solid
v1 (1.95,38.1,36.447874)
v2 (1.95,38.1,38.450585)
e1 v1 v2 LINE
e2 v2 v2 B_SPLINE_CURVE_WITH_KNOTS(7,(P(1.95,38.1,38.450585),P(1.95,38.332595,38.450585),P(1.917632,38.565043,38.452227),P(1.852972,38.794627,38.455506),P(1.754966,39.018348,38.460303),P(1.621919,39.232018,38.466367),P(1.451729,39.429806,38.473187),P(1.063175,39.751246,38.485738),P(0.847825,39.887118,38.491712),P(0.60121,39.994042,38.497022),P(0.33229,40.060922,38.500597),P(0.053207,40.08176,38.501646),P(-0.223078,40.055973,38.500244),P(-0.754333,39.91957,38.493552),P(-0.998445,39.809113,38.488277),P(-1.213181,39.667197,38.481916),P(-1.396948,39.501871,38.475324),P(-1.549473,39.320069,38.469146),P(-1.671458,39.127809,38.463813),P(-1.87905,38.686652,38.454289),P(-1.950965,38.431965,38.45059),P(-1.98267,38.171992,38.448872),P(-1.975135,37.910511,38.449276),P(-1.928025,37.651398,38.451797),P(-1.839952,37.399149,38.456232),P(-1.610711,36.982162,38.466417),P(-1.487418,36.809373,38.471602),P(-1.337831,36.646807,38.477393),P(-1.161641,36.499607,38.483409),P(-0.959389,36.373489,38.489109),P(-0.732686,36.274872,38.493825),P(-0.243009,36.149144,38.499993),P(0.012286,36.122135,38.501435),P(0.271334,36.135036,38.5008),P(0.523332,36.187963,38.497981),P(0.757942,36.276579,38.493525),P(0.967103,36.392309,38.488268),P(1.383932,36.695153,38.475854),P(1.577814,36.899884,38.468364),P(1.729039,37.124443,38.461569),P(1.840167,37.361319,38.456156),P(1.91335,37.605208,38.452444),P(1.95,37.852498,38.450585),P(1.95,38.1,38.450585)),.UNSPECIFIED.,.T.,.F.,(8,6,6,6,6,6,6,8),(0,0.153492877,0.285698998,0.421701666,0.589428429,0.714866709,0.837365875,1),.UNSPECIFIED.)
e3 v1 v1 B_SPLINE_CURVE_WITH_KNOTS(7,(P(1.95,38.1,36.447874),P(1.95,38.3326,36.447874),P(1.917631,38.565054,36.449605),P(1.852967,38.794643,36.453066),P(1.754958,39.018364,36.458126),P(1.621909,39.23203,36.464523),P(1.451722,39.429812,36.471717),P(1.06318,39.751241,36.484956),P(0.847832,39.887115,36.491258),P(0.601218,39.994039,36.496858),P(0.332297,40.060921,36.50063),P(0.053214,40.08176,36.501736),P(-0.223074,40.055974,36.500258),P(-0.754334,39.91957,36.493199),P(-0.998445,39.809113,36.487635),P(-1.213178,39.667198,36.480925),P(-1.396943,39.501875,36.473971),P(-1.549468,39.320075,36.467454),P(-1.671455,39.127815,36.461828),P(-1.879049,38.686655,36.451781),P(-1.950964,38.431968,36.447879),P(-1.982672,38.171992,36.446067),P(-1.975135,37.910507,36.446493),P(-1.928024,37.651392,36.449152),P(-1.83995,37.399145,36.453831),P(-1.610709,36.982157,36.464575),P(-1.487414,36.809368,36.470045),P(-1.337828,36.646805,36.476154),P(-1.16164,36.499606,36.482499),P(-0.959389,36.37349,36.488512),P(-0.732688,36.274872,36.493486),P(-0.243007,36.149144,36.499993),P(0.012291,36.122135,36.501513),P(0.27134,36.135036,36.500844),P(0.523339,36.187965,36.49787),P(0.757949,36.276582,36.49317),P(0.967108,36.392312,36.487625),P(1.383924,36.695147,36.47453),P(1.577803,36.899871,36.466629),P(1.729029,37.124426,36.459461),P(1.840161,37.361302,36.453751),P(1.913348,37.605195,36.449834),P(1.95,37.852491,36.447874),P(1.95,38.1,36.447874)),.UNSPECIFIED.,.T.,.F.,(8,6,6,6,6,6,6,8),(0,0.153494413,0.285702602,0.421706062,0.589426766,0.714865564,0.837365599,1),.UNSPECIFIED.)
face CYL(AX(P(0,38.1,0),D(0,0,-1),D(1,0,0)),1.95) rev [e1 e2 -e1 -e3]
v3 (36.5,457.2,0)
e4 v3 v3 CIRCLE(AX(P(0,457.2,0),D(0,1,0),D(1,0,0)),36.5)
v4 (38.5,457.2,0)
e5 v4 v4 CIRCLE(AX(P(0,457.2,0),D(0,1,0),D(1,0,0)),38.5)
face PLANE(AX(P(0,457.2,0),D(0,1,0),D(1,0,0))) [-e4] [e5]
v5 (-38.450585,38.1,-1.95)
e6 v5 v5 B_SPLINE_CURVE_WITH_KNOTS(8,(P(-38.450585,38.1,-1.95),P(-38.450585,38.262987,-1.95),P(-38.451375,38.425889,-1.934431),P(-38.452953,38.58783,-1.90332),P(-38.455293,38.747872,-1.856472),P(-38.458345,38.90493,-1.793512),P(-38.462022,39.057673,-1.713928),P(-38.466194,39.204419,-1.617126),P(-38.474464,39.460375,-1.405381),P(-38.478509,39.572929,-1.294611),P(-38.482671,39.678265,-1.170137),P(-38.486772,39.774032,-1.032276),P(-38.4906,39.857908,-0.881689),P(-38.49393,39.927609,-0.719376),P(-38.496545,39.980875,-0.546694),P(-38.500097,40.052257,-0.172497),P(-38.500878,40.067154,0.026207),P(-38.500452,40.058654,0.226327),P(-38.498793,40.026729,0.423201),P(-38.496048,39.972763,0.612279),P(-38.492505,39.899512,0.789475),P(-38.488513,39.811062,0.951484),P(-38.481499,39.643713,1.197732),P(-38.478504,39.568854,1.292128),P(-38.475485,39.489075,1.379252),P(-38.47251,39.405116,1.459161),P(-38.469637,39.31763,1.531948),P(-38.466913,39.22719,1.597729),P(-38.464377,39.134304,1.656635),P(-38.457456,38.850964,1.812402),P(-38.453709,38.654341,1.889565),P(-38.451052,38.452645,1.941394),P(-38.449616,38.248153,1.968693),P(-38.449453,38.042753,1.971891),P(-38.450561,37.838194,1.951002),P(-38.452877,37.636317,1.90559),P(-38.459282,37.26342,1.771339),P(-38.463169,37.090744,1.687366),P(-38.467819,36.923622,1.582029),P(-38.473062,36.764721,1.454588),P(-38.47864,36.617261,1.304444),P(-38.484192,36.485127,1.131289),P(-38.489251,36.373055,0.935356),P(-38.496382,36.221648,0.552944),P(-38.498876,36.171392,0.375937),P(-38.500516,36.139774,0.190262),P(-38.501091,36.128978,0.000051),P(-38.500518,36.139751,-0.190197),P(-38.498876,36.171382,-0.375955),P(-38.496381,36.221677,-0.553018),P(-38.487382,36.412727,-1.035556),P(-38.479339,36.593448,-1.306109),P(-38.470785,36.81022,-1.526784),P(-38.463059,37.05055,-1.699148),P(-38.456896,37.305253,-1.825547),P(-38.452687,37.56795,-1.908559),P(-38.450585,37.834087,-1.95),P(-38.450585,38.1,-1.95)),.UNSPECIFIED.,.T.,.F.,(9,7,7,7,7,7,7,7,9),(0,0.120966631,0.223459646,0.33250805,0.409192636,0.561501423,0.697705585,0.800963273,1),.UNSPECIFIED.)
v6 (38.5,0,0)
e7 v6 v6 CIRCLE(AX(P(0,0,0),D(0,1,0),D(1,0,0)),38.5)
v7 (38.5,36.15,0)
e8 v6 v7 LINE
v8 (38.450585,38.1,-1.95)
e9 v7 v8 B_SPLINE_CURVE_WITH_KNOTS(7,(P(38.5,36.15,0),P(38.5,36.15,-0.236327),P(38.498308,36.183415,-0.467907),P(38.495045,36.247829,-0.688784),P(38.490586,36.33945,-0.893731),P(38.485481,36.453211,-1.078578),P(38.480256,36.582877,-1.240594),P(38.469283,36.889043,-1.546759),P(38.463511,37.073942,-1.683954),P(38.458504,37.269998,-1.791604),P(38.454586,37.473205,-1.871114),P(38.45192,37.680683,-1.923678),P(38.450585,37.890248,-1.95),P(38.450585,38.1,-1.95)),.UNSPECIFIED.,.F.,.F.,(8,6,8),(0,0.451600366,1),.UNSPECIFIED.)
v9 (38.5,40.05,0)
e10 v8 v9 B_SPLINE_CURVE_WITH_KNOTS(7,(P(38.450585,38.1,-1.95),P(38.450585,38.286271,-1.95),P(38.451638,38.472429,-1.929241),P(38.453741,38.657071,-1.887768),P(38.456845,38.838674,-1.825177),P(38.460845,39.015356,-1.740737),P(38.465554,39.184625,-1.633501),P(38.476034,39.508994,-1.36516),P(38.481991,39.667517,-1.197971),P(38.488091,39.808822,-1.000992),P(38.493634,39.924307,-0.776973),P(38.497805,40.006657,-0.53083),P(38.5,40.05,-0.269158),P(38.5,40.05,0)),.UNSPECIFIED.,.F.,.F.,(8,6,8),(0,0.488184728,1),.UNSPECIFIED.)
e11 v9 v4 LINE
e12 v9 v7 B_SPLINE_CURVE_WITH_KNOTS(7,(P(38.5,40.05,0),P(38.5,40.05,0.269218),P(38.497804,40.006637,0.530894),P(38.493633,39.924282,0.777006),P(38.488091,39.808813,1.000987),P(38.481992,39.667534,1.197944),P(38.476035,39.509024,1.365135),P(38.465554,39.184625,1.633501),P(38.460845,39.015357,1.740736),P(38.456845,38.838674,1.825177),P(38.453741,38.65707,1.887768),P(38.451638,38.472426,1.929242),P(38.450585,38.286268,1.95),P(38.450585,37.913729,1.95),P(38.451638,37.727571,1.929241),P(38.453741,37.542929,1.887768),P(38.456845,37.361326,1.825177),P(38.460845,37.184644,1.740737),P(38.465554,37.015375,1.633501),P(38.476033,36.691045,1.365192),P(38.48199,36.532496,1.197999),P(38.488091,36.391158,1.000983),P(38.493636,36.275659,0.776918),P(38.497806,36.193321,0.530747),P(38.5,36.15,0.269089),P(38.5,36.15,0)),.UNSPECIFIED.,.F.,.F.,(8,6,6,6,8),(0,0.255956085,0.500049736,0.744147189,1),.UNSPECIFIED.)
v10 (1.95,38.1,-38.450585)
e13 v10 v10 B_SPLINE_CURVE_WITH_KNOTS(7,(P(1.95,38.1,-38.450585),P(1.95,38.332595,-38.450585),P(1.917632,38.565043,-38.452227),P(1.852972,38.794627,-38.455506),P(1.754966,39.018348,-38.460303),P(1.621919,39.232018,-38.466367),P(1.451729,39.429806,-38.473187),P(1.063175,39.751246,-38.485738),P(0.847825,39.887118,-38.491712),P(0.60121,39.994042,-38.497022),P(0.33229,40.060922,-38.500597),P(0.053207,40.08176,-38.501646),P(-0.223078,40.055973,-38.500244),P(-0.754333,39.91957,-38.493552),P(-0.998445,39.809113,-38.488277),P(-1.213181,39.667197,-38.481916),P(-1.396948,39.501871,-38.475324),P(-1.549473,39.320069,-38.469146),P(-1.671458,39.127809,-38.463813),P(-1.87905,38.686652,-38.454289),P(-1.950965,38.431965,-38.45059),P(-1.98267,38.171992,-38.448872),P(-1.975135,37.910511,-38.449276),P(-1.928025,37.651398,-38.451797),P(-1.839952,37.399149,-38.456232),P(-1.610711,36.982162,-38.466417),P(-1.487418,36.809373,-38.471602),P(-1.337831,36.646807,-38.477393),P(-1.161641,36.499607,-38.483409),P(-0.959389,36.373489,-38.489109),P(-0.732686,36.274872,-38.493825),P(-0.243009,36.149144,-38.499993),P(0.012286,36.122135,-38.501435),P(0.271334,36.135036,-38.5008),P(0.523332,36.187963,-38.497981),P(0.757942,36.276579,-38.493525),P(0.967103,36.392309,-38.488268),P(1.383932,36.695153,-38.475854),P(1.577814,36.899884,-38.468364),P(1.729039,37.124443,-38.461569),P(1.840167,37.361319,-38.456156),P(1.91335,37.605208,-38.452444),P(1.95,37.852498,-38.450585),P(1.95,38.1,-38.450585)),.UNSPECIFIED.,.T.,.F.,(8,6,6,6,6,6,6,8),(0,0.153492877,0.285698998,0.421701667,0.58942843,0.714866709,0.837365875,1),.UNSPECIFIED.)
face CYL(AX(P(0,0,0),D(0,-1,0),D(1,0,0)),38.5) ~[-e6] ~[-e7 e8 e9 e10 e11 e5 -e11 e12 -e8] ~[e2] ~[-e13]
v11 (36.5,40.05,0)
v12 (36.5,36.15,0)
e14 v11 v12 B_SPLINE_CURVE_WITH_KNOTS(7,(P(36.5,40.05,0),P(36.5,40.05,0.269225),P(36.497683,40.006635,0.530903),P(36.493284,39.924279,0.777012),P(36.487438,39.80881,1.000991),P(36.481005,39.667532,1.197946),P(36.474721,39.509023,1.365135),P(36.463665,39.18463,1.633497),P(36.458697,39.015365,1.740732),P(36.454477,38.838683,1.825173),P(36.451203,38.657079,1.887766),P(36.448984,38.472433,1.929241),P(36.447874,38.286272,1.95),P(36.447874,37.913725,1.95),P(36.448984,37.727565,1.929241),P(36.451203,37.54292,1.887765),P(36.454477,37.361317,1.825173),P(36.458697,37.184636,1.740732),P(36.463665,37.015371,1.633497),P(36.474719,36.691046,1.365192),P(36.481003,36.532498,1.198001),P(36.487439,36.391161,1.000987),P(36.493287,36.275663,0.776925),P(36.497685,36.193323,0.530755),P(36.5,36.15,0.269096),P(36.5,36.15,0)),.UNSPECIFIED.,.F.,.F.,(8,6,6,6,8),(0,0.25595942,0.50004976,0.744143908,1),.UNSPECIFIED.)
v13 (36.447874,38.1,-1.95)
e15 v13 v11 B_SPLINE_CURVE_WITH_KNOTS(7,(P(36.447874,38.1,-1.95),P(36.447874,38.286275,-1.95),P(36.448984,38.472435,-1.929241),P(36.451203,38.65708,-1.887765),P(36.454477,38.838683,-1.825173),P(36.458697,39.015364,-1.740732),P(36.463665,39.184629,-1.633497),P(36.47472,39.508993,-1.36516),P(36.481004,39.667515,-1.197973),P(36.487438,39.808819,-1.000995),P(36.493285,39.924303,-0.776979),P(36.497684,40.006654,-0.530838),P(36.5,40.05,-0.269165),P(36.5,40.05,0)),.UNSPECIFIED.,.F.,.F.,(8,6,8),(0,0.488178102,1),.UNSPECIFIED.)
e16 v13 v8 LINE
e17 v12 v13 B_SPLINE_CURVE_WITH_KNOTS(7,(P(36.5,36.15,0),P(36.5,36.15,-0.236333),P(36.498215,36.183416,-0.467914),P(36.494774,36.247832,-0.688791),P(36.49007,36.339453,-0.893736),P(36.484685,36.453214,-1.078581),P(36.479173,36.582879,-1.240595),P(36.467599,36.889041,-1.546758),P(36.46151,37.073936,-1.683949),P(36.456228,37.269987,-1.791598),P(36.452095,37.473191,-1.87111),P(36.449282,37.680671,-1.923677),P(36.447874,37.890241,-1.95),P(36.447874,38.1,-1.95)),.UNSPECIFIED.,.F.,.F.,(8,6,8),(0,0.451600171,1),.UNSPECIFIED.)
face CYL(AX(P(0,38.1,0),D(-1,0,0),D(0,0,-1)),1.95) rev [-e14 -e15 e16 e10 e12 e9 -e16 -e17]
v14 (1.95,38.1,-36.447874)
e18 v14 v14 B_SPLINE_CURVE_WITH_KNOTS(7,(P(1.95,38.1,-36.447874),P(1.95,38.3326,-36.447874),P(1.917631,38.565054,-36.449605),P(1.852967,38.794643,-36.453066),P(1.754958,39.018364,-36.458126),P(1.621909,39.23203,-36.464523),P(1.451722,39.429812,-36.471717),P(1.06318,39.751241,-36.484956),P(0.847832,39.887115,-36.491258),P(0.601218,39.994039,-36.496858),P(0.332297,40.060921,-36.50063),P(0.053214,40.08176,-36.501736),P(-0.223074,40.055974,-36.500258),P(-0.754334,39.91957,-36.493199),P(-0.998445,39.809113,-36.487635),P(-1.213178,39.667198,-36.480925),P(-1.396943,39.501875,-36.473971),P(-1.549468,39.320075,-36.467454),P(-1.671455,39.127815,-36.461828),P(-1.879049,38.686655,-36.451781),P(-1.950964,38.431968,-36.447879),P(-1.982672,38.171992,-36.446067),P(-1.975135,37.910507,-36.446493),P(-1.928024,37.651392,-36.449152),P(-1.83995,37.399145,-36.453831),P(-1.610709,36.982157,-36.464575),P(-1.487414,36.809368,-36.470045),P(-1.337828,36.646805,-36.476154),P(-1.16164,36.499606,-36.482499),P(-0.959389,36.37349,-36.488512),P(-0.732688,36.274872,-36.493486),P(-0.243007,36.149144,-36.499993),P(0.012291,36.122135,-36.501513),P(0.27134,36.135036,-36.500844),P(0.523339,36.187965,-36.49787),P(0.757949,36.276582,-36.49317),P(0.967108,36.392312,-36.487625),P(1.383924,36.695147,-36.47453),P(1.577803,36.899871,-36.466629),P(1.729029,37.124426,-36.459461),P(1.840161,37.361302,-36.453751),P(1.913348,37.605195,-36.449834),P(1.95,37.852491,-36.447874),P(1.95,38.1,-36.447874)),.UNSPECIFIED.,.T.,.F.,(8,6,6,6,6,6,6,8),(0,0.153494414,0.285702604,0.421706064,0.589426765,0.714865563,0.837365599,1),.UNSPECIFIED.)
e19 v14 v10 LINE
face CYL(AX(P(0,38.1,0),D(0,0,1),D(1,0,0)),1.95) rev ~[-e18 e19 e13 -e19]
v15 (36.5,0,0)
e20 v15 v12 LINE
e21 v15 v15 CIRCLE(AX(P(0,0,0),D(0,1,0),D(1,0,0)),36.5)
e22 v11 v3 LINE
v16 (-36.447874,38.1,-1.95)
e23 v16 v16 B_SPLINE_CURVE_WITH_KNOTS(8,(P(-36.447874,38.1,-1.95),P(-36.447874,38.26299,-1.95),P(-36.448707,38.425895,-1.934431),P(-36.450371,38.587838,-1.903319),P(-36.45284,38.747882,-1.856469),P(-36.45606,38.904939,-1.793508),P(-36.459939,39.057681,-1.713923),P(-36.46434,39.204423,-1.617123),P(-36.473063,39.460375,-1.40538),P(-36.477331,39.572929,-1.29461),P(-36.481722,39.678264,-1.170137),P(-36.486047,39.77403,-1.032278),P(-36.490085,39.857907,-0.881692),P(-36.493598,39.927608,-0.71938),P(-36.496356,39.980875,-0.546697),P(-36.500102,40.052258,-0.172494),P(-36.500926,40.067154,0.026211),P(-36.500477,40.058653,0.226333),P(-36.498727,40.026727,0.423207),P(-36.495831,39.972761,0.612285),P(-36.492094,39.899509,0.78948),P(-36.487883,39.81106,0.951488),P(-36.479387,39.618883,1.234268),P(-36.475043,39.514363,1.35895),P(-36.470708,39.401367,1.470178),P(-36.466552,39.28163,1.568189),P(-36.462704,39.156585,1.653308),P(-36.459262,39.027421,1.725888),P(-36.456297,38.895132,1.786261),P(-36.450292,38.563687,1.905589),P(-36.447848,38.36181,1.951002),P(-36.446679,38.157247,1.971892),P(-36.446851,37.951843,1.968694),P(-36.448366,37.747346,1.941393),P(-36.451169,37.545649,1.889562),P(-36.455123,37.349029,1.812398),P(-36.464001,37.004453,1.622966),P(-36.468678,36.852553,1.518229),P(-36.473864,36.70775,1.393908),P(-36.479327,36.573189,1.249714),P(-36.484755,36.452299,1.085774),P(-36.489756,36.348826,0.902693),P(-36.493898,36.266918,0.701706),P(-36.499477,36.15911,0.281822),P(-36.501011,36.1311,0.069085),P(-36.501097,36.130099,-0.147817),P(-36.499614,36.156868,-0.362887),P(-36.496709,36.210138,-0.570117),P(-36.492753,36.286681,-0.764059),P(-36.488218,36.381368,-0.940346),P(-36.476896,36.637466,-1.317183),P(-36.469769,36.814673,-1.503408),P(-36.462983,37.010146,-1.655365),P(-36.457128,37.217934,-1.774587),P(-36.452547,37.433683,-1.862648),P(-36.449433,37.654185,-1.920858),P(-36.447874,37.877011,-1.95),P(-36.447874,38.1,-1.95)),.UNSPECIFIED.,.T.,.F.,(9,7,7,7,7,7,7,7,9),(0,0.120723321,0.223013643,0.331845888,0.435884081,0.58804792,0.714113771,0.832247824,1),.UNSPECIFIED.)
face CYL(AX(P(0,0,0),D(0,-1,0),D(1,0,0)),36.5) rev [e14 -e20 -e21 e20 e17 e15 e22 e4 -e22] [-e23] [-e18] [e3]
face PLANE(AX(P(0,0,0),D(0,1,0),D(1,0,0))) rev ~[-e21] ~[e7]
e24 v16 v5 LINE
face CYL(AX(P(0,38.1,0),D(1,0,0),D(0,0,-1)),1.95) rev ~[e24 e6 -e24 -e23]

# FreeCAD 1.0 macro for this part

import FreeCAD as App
import Part
import Sketcher

V = App.Vector

doc = App.newDocument("Part")
body = doc.addObject("PartDesign::Body", "Body")

sketch1 = body.newObject("Sketcher::SketchObject", "Sketch")
sketch1.AttachmentSupport = (doc.getObject("XZ_Plane"), [""])
sketch1.MapMode = "FlatFace"
sketch1.addGeometry([
    Part.Circle(V(0, 0, 0), V(0, 0, 1), 38),
    Part.Circle(V(0, 0, 0), V(0, 0, 1), 36),
], False)
sketch1.addConstraint([
    Sketcher.Constraint("Coincident", 0, 3, -1, 1),
    Sketcher.Constraint("Coincident", 1, 3, -1, 1),
    Sketcher.Constraint("Diameter", 0, 77.0),
    Sketcher.Constraint("Diameter", 1, 73.0),
])
pad1 = body.newObject("PartDesign::Pad", "Pad")
pad1.Profile = sketch1
pad1.Length = 457.2
pad1.Reversed = True

sketch2 = body.newObject("Sketcher::SketchObject", "Sketch001")
sketch2.AttachmentSupport = (doc.getObject("YZ_Plane"), [""])
sketch2.MapMode = "FlatFace"
sketch2.addGeometry(Part.Circle(V(38.1, 0, 0), V(0, 0, 1), 1.9), False)
sketch2.addConstraint([
    Sketcher.Constraint("PointOnObject", 0, 3, -1),
    Sketcher.Constraint("Diameter", 0, 3.9),
    Sketcher.Constraint("DistanceX", -1, 1, 0, 3, 38.1),
])
pocket1 = body.newObject("PartDesign::Pocket", "Pocket")
pocket1.Profile = sketch2
pocket1.Type = "ThroughAll"
pocket1.Midplane = True

sketch3 = body.newObject("Sketcher::SketchObject", "Sketch002")
sketch3.AttachmentSupport = (doc.getObject("XY_Plane"), [""])
sketch3.MapMode = "FlatFace"
sketch3.addGeometry(Part.Circle(V(0, 38.1, 0), V(0, 0, 1), 1.9), False)
sketch3.addConstraint([
    Sketcher.Constraint("PointOnObject", 0, 3, -2),
    Sketcher.Constraint("Diameter", 0, 3.9),
    Sketcher.Constraint("DistanceY", -1, 1, 0, 3, 38.1),
])
pocket2 = body.newObject("PartDesign::Pocket", "Pocket001")
pocket2.Profile = sketch3
pocket2.Type = "ThroughAll"
pocket2.Midplane = True

doc.recompute()
